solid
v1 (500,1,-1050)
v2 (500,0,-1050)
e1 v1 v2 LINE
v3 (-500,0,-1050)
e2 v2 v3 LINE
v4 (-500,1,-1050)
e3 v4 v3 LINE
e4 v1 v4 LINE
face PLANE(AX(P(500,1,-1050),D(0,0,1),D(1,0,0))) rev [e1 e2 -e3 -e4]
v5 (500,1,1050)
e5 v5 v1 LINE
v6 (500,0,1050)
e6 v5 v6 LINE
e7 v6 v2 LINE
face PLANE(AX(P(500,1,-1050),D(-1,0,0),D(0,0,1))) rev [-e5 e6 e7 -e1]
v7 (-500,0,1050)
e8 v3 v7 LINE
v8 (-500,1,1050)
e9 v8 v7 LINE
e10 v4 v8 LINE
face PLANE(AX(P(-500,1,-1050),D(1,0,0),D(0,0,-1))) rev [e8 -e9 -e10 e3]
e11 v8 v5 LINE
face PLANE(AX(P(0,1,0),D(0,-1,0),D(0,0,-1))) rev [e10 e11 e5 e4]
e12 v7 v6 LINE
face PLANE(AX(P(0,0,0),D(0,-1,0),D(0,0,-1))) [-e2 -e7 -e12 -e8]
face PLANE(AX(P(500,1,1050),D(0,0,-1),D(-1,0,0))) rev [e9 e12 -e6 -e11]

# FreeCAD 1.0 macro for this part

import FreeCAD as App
import Part
import Sketcher
from FreeCAD import Vector

doc = App.newDocument("Part")
body = doc.addObject("PartDesign::Body", "Body")

sketch1 = body.newObject("Sketcher::SketchObject", "Sketch")
sketch1.AttachmentSupport = (doc.getObject("XZ_Plane"), [""])
sketch1.MapMode = "FlatFace"
sketch1.addGeometry([
    Part.LineSegment(Vector(-500, -1050, 0), Vector(-500, 1050, 0)),
    Part.LineSegment(Vector(-500, 1050, 0), Vector(500, 1050, 0)),
    Part.LineSegment(Vector(500, 1050, 0), Vector(500, -1050, 0)),
    Part.LineSegment(Vector(500, -1050, 0), Vector(-500, -1050, 0)),
], False)
sketch1.addConstraint([
    Sketcher.Constraint("Coincident", 0, 2, 1, 1),
    Sketcher.Constraint("Coincident", 1, 2, 2, 1),
    Sketcher.Constraint("Coincident", 2, 2, 3, 1),
    Sketcher.Constraint("Coincident", 3, 2, 0, 1),
    Sketcher.Constraint("Vertical", 0),
    Sketcher.Constraint("Horizontal", 1),
    Sketcher.Constraint("Vertical", 2),
    Sketcher.Constraint("Horizontal", 3),
    Sketcher.Constraint("Symmetric", 0, 2, 2, 2, -1, 1),
    Sketcher.Constraint("DistanceX", 1, 1, 1, 2, 1000.0),
    Sketcher.Constraint("DistanceY", 0, 1, 0, 2, 2100.0),
])
pad1 = body.newObject("PartDesign::Pad", "Pad")
pad1.Profile = sketch1
pad1.Length = 1
pad1.Reversed = True

doc.recompute()
